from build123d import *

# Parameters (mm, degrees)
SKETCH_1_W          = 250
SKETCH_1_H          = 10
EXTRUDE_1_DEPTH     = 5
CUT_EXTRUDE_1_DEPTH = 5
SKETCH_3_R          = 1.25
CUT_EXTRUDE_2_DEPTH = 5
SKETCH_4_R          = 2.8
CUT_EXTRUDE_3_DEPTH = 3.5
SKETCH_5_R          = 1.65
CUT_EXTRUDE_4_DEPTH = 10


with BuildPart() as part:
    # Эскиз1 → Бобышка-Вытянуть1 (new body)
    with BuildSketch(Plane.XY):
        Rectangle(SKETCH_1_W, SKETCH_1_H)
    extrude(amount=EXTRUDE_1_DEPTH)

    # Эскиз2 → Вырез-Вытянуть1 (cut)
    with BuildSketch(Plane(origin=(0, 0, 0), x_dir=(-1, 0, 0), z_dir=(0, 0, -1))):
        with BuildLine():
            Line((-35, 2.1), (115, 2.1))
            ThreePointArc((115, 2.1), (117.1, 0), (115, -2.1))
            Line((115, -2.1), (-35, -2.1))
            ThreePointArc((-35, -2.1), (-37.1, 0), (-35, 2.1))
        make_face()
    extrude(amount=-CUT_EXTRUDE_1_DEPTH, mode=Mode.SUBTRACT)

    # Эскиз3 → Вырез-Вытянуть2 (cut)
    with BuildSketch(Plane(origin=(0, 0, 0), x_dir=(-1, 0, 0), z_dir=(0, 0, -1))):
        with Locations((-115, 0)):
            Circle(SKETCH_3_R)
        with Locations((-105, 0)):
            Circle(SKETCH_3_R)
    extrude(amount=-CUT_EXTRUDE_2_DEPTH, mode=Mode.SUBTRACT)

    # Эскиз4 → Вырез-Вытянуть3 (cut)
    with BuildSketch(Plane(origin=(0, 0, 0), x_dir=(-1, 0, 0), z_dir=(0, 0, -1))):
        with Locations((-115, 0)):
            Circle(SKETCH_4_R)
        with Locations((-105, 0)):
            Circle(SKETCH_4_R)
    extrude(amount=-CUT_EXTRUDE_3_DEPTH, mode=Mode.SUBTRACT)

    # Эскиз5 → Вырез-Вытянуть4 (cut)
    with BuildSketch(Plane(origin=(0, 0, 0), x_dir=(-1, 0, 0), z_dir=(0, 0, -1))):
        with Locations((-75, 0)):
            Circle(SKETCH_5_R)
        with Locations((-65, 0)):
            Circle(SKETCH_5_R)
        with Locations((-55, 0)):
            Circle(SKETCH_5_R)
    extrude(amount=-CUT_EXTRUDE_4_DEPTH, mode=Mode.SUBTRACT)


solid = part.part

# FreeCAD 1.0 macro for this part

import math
import FreeCAD as App
import Part
import Sketcher


def add_polygon(sketch, points):
    """Adds a closed chain of lines whose ends are joined by coincident constraints."""
    first, n = sketch.GeometryCount, len(points)
    for a, b in zip(points, points[1:] + points[:1]):
        sketch.addGeometry(Part.LineSegment(App.Vector(*a, 0), App.Vector(*b, 0)), False)
    for i in range(n):
        sketch.addConstraint(Sketcher.Constraint("Coincident", first + i, 2, first + (i + 1) % n, 1))

doc = App.newDocument("Part")
body = doc.addObject("PartDesign::Body", "Body")

sketch1 = body.newObject("Sketcher::SketchObject", "Sketch")
sketch1.AttachmentSupport = (doc.getObject("XY_Plane"), [""])
sketch1.MapMode = "FlatFace"
add_polygon(sketch1, [(-125, 5), (-125, -5), (125, -5), (125, 5)])
sketch1.addConstraint([
    Sketcher.Constraint("Vertical", 0),
    Sketcher.Constraint("Horizontal", 1),
    Sketcher.Constraint("Vertical", 2),
    Sketcher.Constraint("Horizontal", 3),
    Sketcher.Constraint("Symmetric", 0, 2, 2, 2, -1, 1),
    Sketcher.Constraint("DistanceX", 1, 1, 1, 2, 250.0),
    Sketcher.Constraint("DistanceY", 0, 2, 0, 1, 10.0),
])
pad1 = body.newObject("PartDesign::Pad", "Pad")
pad1.Profile = sketch1
pad1.Length = 5

sketch2 = body.newObject("Sketcher::SketchObject", "Sketch001")
sketch2.AttachmentSupport = (doc.getObject("XY_Plane"), [""])
sketch2.MapMode = "FlatFace"
sketch2.addGeometry([
    Part.LineSegment(App.Vector(-115, 2.1, 0), App.Vector(35, 2.1, 0)),
    Part.ArcOfCircle(Part.Circle(App.Vector(35, 0, 0), App.Vector(0, 0, 1), 2.1), math.radians(-90), math.radians(90)),
    Part.LineSegment(App.Vector(35, -2.1, 0), App.Vector(-115, -2.1, 0)),
    Part.ArcOfCircle(Part.Circle(App.Vector(-115, 0, 0), App.Vector(0, 0, 1), 2.1), math.radians(90), math.radians(270)),
], False)
sketch2.addConstraint([
    Sketcher.Constraint("Tangent", 0, 2, 1, 2),
    Sketcher.Constraint("Tangent", 1, 1, 2, 1),
    Sketcher.Constraint("Tangent", 2, 2, 3, 2),
    Sketcher.Constraint("Tangent", 3, 1, 0, 1),
    Sketcher.Constraint("Horizontal", 0),
    Sketcher.Constraint("Horizontal", 2),
    Sketcher.Constraint("PointOnObject", 1, 3, -1),
    Sketcher.Constraint("Radius", 1, 2.1),
    Sketcher.Constraint("DistanceX", 0, 1, 0, 2, 150.0),
    Sketcher.Constraint("DistanceX", -1, 1, 1, 3, 35.0),
])
pocket1 = body.newObject("PartDesign::Pocket", "Pocket")
pocket1.Profile = sketch2
pocket1.Length = 5
pocket1.Reversed = True

sketch3 = body.newObject("Sketcher::SketchObject", "Sketch002")
sketch3.AttachmentSupport = (doc.getObject("XY_Plane"), [""])
sketch3.MapMode = "FlatFace"
sketch3.addGeometry([
    Part.Circle(App.Vector(115, 0, 0), App.Vector(0, 0, 1), 1.25),
    Part.Circle(App.Vector(105, 0, 0), App.Vector(0, 0, 1), 1.25),
], False)
sketch3.addConstraint([
    Sketcher.Constraint("Equal", 0, 1),
    Sketcher.Constraint("PointOnObject", 0, 3, -1),
    Sketcher.Constraint("PointOnObject", 1, 3, -1),
    Sketcher.Constraint("Diameter", 0, 2.5),
    Sketcher.Constraint("DistanceX", -1, 1, 0, 3, 115.0),
    Sketcher.Constraint("DistanceX", -1, 1, 1, 3, 105.0),
])
pocket2 = body.newObject("PartDesign::Pocket", "Pocket001")
pocket2.Profile = sketch3
pocket2.Length = 5
pocket2.Reversed = True

sketch4 = body.newObject("Sketcher::SketchObject", "Sketch003")
sketch4.AttachmentSupport = (doc.getObject("XY_Plane"), [""])
sketch4.MapMode = "FlatFace"
sketch4.addGeometry([
    Part.Circle(App.Vector(115, 0, 0), App.Vector(0, 0, 1), 2.8),
    Part.Circle(App.Vector(105, 0, 0), App.Vector(0, 0, 1), 2.8),
], False)
sketch4.addConstraint([
    Sketcher.Constraint("Equal", 0, 1),
    Sketcher.Constraint("PointOnObject", 0, 3, -1),
    Sketcher.Constraint("PointOnObject", 1, 3, -1),
    Sketcher.Constraint("Diameter", 0, 5.6),
    Sketcher.Constraint("DistanceX", -1, 1, 0, 3, 115.0),
    Sketcher.Constraint("DistanceX", -1, 1, 1, 3, 105.0),
])
pocket3 = body.newObject("PartDesign::Pocket", "Pocket002")
pocket3.Profile = sketch4
pocket3.Length = 3.5
pocket3.Reversed = True

sketch5 = body.newObject("Sketcher::SketchObject", "Sketch004")
sketch5.AttachmentSupport = (doc.getObject("XY_Plane"), [""])
sketch5.MapMode = "FlatFace"
sketch5.addGeometry([
    Part.Circle(App.Vector(75, 0, 0), App.Vector(0, 0, 1), 1.65),
    Part.Circle(App.Vector(65, 0, 0), App.Vector(0, 0, 1), 1.65),
    Part.Circle(App.Vector(55, 0, 0), App.Vector(0, 0, 1), 1.65),
], False)
sketch5.addConstraint([
    Sketcher.Constraint("Equal", 0, 1),
    Sketcher.Constraint("Equal", 1, 2),
    Sketcher.Constraint("PointOnObject", 0, 3, -1),
    Sketcher.Constraint("PointOnObject", 1, 3, -1),
    Sketcher.Constraint("PointOnObject", 2, 3, -1),
    Sketcher.Constraint("Diameter", 0, 3.3),
    Sketcher.Constraint("DistanceX", -1, 1, 0, 3, 75.0),
    Sketcher.Constraint("DistanceX", -1, 1, 1, 3, 65.0),
    Sketcher.Constraint("DistanceX", -1, 1, 2, 3, 55.0),
])
pocket4 = body.newObject("PartDesign::Pocket", "Pocket003")
pocket4.Profile = sketch5
pocket4.Length = 10
pocket4.Reversed = True

doc.recompute()
